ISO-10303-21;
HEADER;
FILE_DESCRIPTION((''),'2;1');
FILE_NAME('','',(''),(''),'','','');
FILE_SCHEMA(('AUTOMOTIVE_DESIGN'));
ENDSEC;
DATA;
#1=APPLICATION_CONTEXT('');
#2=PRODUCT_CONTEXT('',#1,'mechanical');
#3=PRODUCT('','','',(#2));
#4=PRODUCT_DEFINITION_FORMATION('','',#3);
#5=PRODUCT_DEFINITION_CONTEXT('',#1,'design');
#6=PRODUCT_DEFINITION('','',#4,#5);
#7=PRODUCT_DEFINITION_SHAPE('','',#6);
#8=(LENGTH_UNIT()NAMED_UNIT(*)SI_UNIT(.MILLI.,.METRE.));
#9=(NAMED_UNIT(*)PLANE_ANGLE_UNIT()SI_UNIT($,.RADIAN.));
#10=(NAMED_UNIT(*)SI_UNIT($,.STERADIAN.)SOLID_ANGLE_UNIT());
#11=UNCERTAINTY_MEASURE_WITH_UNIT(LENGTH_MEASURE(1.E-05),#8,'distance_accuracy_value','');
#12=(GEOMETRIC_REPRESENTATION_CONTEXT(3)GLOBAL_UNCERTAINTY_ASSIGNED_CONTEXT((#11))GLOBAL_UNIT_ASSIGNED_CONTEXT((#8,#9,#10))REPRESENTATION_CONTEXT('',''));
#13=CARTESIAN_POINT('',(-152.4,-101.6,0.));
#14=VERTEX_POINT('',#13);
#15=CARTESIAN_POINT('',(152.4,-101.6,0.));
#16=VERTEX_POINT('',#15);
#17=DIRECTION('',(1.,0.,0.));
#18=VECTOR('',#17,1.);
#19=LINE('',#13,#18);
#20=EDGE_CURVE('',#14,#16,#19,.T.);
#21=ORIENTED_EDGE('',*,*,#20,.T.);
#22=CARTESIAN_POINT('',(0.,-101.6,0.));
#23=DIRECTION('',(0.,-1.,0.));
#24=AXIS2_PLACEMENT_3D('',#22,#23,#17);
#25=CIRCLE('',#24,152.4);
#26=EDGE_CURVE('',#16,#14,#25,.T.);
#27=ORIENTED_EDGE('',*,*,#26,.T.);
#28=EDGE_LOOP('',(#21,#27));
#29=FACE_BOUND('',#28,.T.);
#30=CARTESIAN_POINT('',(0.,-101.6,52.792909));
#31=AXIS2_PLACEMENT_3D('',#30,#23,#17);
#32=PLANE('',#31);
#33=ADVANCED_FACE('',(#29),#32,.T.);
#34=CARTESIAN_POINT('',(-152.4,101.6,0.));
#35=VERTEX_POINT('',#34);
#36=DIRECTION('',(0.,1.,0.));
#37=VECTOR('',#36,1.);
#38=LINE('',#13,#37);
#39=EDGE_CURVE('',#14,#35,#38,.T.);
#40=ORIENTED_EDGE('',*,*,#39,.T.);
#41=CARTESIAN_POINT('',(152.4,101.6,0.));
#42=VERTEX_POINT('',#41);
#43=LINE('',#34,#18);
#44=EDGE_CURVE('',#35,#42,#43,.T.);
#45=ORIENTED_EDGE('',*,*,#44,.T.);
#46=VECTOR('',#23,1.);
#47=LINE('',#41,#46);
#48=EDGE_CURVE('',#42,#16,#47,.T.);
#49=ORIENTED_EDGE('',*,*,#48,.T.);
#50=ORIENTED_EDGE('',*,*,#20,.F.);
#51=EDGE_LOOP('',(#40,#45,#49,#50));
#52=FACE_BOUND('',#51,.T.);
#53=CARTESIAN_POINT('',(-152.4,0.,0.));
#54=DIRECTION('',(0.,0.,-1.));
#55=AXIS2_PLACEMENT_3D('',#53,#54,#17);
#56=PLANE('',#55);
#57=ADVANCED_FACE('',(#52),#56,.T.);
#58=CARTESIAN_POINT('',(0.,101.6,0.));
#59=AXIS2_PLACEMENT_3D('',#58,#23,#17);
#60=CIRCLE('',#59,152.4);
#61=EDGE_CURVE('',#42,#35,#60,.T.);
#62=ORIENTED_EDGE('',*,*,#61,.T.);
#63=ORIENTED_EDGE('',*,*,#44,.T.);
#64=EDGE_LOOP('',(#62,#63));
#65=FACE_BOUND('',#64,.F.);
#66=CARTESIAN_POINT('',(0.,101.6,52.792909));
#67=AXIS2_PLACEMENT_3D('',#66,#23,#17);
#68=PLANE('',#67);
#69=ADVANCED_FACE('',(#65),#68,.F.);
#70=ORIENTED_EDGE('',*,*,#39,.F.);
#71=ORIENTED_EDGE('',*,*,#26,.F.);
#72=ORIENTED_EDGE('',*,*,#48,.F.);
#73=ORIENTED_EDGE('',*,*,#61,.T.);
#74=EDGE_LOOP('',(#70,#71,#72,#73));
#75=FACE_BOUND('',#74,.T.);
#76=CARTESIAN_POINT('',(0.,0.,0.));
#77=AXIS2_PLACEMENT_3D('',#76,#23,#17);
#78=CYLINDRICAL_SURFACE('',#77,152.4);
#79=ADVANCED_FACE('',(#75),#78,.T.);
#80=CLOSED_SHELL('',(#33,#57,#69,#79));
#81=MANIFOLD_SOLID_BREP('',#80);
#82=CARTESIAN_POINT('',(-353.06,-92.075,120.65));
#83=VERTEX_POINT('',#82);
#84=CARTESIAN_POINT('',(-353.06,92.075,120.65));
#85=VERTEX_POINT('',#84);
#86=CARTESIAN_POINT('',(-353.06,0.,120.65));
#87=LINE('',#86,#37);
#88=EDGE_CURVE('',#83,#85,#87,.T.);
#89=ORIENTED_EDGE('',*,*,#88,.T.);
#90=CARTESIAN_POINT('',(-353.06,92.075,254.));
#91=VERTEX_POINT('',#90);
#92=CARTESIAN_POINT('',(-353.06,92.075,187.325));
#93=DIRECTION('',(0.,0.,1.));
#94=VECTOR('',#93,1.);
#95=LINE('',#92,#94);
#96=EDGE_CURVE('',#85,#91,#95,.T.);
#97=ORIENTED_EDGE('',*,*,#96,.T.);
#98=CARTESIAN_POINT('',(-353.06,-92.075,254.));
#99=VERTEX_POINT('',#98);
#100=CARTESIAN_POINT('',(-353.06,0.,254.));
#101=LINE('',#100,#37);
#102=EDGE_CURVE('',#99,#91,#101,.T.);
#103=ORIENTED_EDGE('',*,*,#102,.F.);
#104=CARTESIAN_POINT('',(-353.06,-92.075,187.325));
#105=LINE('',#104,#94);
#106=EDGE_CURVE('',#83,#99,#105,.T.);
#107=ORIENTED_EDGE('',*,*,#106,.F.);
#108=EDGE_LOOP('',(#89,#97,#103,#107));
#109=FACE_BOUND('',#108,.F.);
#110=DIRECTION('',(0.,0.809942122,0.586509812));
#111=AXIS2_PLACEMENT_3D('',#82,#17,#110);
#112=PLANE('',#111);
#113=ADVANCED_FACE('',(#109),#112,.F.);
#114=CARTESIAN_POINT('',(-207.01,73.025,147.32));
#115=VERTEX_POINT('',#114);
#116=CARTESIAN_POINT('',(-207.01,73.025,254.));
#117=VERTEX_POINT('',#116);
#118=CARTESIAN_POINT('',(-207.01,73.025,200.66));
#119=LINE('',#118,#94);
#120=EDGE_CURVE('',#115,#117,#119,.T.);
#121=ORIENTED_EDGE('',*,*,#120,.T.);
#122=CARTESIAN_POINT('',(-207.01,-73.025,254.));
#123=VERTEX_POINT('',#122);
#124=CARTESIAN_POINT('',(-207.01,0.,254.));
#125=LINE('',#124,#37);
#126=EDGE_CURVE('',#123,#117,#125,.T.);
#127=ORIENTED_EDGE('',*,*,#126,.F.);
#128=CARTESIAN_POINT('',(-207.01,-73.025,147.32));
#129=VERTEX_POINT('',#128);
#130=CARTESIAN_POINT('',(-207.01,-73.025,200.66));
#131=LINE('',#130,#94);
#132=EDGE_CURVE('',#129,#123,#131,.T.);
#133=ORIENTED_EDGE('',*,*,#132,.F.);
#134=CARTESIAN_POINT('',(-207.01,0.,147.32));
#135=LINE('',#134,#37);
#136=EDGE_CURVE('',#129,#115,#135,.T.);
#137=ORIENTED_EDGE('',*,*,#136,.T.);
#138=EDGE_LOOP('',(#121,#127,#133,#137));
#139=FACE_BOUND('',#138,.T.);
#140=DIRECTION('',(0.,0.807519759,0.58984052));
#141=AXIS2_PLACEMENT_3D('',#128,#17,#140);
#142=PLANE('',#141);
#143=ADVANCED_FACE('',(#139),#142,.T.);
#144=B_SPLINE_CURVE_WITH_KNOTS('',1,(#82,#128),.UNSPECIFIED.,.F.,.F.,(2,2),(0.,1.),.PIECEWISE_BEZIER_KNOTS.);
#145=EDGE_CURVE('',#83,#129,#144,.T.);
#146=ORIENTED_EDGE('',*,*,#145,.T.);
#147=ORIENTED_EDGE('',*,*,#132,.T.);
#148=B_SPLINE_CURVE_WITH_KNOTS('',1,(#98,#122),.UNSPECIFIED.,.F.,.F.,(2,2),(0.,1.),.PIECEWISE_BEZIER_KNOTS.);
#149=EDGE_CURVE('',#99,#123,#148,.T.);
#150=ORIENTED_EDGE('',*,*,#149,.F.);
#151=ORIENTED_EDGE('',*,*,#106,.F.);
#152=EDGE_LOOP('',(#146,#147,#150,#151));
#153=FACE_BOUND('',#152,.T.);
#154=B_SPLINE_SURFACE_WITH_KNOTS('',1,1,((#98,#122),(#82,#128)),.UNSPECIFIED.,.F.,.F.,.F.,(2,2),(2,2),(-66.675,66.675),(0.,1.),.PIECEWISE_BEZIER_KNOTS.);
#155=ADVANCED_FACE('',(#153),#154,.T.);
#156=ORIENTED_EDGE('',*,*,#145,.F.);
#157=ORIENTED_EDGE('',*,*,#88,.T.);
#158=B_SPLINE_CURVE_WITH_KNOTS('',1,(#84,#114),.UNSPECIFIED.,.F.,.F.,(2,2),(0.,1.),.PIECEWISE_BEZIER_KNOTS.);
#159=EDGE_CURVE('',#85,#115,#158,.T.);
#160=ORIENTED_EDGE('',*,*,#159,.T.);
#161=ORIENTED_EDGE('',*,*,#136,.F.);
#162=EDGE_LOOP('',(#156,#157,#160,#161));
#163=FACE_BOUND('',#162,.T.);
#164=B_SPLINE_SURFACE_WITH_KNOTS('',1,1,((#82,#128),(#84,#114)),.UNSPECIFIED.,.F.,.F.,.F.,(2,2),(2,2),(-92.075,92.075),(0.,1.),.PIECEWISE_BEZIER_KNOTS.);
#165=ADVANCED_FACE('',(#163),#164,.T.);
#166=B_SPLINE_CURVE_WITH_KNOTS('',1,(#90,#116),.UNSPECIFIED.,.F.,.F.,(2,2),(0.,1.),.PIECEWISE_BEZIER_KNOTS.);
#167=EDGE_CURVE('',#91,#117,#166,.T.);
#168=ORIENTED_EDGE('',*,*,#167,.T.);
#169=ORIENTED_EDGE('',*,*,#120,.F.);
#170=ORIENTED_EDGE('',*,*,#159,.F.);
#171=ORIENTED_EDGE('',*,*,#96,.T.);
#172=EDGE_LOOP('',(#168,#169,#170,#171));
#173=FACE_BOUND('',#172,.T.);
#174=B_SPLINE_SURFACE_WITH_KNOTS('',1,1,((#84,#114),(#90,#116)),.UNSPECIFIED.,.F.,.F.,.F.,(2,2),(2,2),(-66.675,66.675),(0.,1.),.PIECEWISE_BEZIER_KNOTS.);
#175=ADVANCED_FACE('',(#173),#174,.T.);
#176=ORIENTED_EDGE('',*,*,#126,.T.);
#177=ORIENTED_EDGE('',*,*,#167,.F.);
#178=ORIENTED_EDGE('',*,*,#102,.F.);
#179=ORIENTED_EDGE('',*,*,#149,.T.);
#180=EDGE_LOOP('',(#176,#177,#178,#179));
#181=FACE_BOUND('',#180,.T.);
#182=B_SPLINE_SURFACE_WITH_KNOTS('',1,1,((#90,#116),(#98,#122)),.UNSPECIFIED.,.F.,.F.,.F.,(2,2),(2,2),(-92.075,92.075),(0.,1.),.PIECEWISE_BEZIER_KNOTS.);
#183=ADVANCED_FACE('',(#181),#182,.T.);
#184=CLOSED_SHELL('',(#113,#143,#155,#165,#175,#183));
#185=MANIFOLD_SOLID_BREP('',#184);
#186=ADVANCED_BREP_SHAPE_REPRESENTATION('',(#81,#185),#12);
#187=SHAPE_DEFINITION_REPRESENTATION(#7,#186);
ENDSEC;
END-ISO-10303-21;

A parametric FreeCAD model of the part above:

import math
import FreeCAD as App
import Part
import Sketcher

V = App.Vector
Q = App.Units.Quantity


def add_polygon(sketch, points):
    """Adds a closed chain of lines whose ends are joined by coincident constraints."""
    first, n = sketch.GeometryCount, len(points)
    for a, b in zip(points, points[1:] + points[:1]):
        sketch.addGeometry(Part.LineSegment(App.Vector(*a, 0), App.Vector(*b, 0)), False)
    for i in range(n):
        sketch.addConstraint(Sketcher.Constraint("Coincident", first + i, 2, first + (i + 1) % n, 1))

doc = App.newDocument("Part")
body = doc.addObject("PartDesign::Body", "Body")

# Sketch on XZ plane
sketch1 = body.newObject("Sketcher::SketchObject", "Sketch")
sketch1.AttachmentSupport = (doc.getObject("XZ_Plane"), [""])
sketch1.MapMode = "FlatFace"
sketch1.addGeometry([
    Part.LineSegment(V(-152.4, 0, 0), V(152.4, 0, 0)),
    Part.ArcOfCircle(Part.Circle(V(0, 0, 0), V(0, 0, 1), 152.4), math.radians(0), math.radians(180)),
], False)
sketch1.addConstraint([
    Sketcher.Constraint("Coincident", 0, 1, 1, 2),
    Sketcher.Constraint("Coincident", 1, 1, 0, 2),
    Sketcher.Constraint("Horizontal", 0),
    Sketcher.Constraint("Coincident", 1, 3, -1, 1),
    Sketcher.Constraint("PointOnObject", 0, 1, -1),
    Sketcher.Constraint("Radius", 1, Q("6 in")),
])
pad1 = body.newObject("PartDesign::Pad", "Pad")
pad1.Profile = sketch1
pad1.Length = Q("8 in")
pad1.Midplane = True
body2 = doc.addObject("PartDesign::Body", "Body001")

# Sketch on YZ plane
sketch2 = body2.newObject("Sketcher::SketchObject", "Sketch001")
sketch2.AttachmentSupport = (doc.getObject("YZ_Plane001"), [""])
sketch2.MapMode = "FlatFace"
sketch2.AttachmentOffset = App.Placement(V(0, 0, -13.9 * 25.4), App.Rotation())
add_polygon(sketch2, [(-92.075, 254), (-92.075, 120.65), (92.075, 120.65), (92.075, 254)])  # lines 0-3
sketch2.addConstraint([
    Sketcher.Constraint("Vertical", 0),
    Sketcher.Constraint("Horizontal", 1),
    Sketcher.Constraint("Vertical", 2),
    Sketcher.Constraint("Horizontal", 3),
    Sketcher.Constraint("DistanceY", -1, 1, 2, 2, Q("10 in")),
    Sketcher.Constraint("DistanceX", 1, 1, 1, 2, Q("7.25 in")),
    Sketcher.Constraint("DistanceY", 0, 2, 0, 1, Q("5.25 in")),
    Sketcher.Constraint("DistanceX", 0, 2, -1, 1, Q("3.625 in")),
])

# Sketch on YZ plane
sketch3 = body2.newObject("Sketcher::SketchObject", "Sketch002")
sketch3.AttachmentSupport = (doc.getObject("YZ_Plane001"), [""])
sketch3.MapMode = "FlatFace"
sketch3.AttachmentOffset = App.Placement(V(0, 0, -8.15 * 25.4), App.Rotation())
add_polygon(sketch3, [(-73.025, 254), (-73.025, 147.32), (73.025, 147.32), (73.025, 254)])  # lines 0-3
sketch3.addConstraint([
    Sketcher.Constraint("Vertical", 0),
    Sketcher.Constraint("Horizontal", 1),
    Sketcher.Constraint("Vertical", 2),
    Sketcher.Constraint("Horizontal", 3),
    Sketcher.Constraint("DistanceY", 0, 2, 0, 1, Q("4.2 in")),
    Sketcher.Constraint("DistanceY", -1, 1, 2, 2, Q("10 in")),
    Sketcher.Constraint("DistanceX", 1, 1, 1, 2, Q("5.75 in")),
    Sketcher.Constraint("DistanceX", 0, 2, -1, 1, Q("2.875 in")),
])

additiveloft = body2.newObject("PartDesign::AdditiveLoft", "AdditiveLoft")
additiveloft.Profile = sketch2
additiveloft.Sections = [sketch3]

doc.recompute()
